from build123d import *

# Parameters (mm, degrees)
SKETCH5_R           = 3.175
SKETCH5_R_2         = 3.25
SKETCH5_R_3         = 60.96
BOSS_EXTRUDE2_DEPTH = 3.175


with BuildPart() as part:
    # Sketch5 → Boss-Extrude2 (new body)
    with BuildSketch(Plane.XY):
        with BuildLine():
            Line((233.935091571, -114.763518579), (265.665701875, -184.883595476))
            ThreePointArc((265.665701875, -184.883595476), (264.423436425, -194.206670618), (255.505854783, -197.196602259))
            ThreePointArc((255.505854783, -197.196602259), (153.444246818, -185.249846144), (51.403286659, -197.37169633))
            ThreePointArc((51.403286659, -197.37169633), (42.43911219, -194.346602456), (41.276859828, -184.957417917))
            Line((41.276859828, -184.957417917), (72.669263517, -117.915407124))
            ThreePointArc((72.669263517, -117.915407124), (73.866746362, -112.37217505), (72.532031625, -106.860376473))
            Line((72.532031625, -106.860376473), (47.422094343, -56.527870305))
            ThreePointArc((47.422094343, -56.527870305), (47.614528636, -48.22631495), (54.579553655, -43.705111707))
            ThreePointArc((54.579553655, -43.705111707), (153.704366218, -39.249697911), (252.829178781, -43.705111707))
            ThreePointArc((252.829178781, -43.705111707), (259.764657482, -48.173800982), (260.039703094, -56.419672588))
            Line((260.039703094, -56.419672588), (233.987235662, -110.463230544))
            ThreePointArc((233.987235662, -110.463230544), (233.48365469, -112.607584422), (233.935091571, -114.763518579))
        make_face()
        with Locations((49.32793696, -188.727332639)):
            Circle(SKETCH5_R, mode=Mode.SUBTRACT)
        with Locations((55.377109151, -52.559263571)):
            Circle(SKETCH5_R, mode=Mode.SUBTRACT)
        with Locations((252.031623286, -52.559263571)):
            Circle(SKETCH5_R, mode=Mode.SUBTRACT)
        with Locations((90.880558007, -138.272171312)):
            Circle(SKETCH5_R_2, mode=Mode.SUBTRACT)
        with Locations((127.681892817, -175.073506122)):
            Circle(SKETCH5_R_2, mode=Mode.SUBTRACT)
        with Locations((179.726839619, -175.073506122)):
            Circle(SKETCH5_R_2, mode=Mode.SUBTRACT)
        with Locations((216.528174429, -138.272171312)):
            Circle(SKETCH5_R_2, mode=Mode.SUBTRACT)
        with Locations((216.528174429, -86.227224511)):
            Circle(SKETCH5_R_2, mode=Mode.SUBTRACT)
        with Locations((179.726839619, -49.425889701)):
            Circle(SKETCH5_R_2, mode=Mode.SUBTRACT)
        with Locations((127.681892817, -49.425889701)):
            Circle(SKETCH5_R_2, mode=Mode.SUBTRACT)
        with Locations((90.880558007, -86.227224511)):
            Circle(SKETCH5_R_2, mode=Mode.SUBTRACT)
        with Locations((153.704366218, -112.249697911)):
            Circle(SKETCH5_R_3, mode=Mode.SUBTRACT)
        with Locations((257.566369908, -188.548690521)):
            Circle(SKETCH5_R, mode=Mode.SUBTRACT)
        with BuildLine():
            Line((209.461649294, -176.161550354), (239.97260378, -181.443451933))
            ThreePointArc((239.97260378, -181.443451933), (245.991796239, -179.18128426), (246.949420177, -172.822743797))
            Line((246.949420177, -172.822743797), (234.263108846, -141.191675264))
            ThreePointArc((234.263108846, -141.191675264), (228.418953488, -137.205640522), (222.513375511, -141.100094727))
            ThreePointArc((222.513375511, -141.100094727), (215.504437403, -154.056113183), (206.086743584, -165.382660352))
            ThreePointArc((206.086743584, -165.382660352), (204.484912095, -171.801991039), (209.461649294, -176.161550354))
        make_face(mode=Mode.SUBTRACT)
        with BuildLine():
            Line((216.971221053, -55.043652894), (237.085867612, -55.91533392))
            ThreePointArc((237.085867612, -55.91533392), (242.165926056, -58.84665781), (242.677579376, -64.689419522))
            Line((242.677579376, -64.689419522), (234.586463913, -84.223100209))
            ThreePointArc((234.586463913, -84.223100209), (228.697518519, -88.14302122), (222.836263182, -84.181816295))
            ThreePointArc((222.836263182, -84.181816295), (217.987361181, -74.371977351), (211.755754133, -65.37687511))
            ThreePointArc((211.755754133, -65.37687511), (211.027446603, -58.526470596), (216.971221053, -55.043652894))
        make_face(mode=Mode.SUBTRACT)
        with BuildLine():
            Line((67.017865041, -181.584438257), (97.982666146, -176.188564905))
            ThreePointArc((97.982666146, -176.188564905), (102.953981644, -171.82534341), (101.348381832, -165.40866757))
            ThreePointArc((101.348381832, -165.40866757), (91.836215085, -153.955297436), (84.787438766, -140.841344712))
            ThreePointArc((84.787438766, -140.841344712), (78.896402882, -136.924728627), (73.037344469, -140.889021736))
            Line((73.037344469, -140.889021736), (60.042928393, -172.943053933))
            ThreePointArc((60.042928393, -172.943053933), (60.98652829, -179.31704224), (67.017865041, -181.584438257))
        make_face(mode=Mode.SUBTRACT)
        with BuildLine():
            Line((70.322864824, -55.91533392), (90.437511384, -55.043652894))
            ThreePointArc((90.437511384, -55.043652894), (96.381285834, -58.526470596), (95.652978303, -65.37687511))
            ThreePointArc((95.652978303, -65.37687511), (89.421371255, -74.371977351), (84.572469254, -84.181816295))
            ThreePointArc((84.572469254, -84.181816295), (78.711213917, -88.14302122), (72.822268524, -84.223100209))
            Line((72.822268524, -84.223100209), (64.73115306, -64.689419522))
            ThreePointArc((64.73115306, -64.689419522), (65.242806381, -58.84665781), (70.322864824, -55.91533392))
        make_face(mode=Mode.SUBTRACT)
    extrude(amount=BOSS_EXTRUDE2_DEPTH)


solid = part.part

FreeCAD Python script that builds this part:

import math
import FreeCAD as App
import Part
import Sketcher
Q = App.Units.Quantity

doc = App.newDocument("Part")
body = doc.addObject("PartDesign::Body", "Body")

# Sketch on XY plane
sketch1 = doc.addObject("Sketcher::SketchObject", "Sketch")
body.addObject(sketch1)
sketch1.AttachmentSupport = (doc.XY_Plane, [""])
sketch1.MapMode = "FlatFace"
sketch1.addGeometry([
    Part.LineSegment(App.Vector(265.665702, -184.883595, 0), App.Vector(233.935092, -114.763519, 0)),  # 0
    Part.ArcOfCircle(Part.Circle(App.Vector(238.563281, -112.669179, 0), App.Vector(0, 0, 1), 5.08), math.radians(154.262946), math.radians(204.347617)),  # 1
    Part.LineSegment(App.Vector(233.987236, -110.463231, 0), App.Vector(260.039703, -56.419673, 0)),  # 2
    Part.ArcOfCircle(Part.Circle(App.Vector(252.031623, -52.559264, 0), App.Vector(0, 0, 1), 8.89), math.radians(-25.737054), math.radians(84.852859)),  # 3
    Part.ArcOfCircle(Part.Circle(App.Vector(153.704366, -1144.150346, 0), App.Vector(0, 0, 1), 1104.900648), math.radians(84.852859), math.radians(95.147141)),  # 4
    Part.ArcOfCircle(Part.Circle(App.Vector(55.377109, -52.559264, 0), App.Vector(0, 0, 1), 8.89), math.radians(95.147141), math.radians(206.513743)),  # 5
    Part.LineSegment(App.Vector(47.422094, -56.52787, 0), App.Vector(72.532032, -106.860376, 0)),  # 6
    Part.ArcOfCircle(Part.Circle(App.Vector(61.167725, -112.529815, 0), App.Vector(0, 0, 1), 12.7), math.radians(-25.091331), math.radians(26.513743)),  # 7
    Part.LineSegment(App.Vector(72.669264, -117.915407, 0), App.Vector(41.27686, -184.957418, 0)),  # 8
    Part.ArcOfCircle(Part.Circle(App.Vector(49.327937, -188.727333, 0), App.Vector(0, 0, 1), 8.89), math.radians(154.908669), math.radians(283.500135)),  # 9
    Part.ArcOfCircle(Part.Circle(App.Vector(153.82061, -623.96611, 0), App.Vector(0, 0, 1), 438.716425), math.radians(76.59817), math.radians(103.500135)),  # 10
    Part.ArcOfCircle(Part.Circle(App.Vector(257.56637, -188.548691, 0), App.Vector(0, 0, 1), 8.89), math.radians(-103.40183), math.radians(24.347617)),  # 11
    Part.Circle(App.Vector(257.56637, -188.548691, 0), App.Vector(0, 0, 1), 3.175),  # 12
    Part.ArcOfCircle(Part.Circle(App.Vector(210.544818, -169.904615, 0), App.Vector(0, 0, 1), 6.35), math.radians(134.592432), math.radians(260.178585)),  # 13
    Part.ArcOfCircle(Part.Circle(App.Vector(153.704366, -112.249698, 0), App.Vector(0, 0, 1), 74.6125), math.radians(-45.407568), math.radians(-22.74744)),  # 14
    Part.ArcOfCircle(Part.Circle(App.Vector(228.369461, -143.555448, 0), App.Vector(0, 0, 1), 6.35), math.radians(21.854301), math.radians(157.25256)),  # 15
    Part.LineSegment(App.Vector(234.263109, -141.191675, 0), App.Vector(246.94942, -172.822744, 0)),  # 16
    Part.ArcOfCircle(Part.Circle(App.Vector(241.055773, -175.186516, 0), App.Vector(0, 0, 1), 6.35), math.radians(-99.821415), math.radians(21.854301)),  # 17
    Part.LineSegment(App.Vector(239.972604, -181.443452, 0), App.Vector(209.461649, -176.16155, 0)),  # 18
    Part.Circle(App.Vector(179.72684, -175.073506, 0), App.Vector(0, 0, 1), 3.25),  # 19
    Part.Circle(App.Vector(216.528174, -138.272171, 0), App.Vector(0, 0, 1), 3.25),  # 20
    Part.Circle(App.Vector(127.681893, -175.073506, 0), App.Vector(0, 0, 1), 3.25),  # 21
    Part.Circle(App.Vector(49.327937, -188.727333, 0), App.Vector(0, 0, 1), 3.175),  # 22
    Part.ArcOfCircle(Part.Circle(App.Vector(65.927752, -175.328709, 0), App.Vector(0, 0, 1), 6.35), math.radians(157.932809), math.radians(279.885006)),  # 23
    Part.LineSegment(App.Vector(60.042928, -172.943054, 0), App.Vector(73.037344, -140.889022, 0)),  # 24
    Part.ArcOfCircle(Part.Circle(App.Vector(78.922168, -143.274676, 0), App.Vector(0, 0, 1), 6.35), math.radians(22.532153), math.radians(157.932809)),  # 25
    Part.ArcOfCircle(Part.Circle(App.Vector(153.704366, -112.249698, 0), App.Vector(0, 0, 1), 74.6125), math.radians(-157.467847), math.radians(-134.563979)),  # 26
    Part.ArcOfCircle(Part.Circle(App.Vector(96.892553, -169.932835, 0), App.Vector(0, 0, 1), 6.35), math.radians(-80.114994), math.radians(45.436021)),  # 27
    Part.LineSegment(App.Vector(97.982666, -176.188565, 0), App.Vector(67.017865, -181.584438, 0)),  # 28
    Part.Circle(App.Vector(90.880558, -138.272171, 0), App.Vector(0, 0, 1), 3.25),  # 29
    Part.Circle(App.Vector(216.528174, -86.227225, 0), App.Vector(0, 0, 1), 3.25),  # 30
    Part.Circle(App.Vector(153.704366, -112.249698, 0), App.Vector(0, 0, 1), 60.96),  # 31
    Part.LineSegment(App.Vector(216.971221, -55.043653, 0), App.Vector(237.085868, -55.915334, 0)),  # 32
    Part.ArcOfCircle(Part.Circle(App.Vector(236.810944, -62.25938, 0), App.Vector(0, 0, 1), 6.35), math.radians(-22.5), math.radians(87.518603)),  # 33
    Part.LineSegment(App.Vector(242.677579, -64.68942, 0), App.Vector(234.586464, -84.2231, 0)),  # 34
    Part.ArcOfCircle(Part.Circle(App.Vector(228.719829, -81.79306, 0), App.Vector(0, 0, 1), 6.35), math.radians(-157.902612), math.radians(-22.5)),  # 35
    Part.ArcOfCircle(Part.Circle(App.Vector(153.704366, -112.249698, 0), App.Vector(0, 0, 1), 74.6125), math.radians(22.097388), math.radians(38.91868)),  # 36
    Part.ArcOfCircle(Part.Circle(App.Vector(216.696298, -61.387699, 0), App.Vector(0, 0, 1), 6.35), math.radians(87.518603), math.radians(218.91868)),  # 37
    Part.Circle(App.Vector(252.031623, -52.559264, 0), App.Vector(0, 0, 1), 3.175),  # 38
    Part.Circle(App.Vector(179.72684, -49.42589, 0), App.Vector(0, 0, 1), 3.25),  # 39
    Part.Circle(App.Vector(90.880558, -86.227225, 0), App.Vector(0, 0, 1), 3.25),  # 40
    Part.Circle(App.Vector(127.681893, -49.42589, 0), App.Vector(0, 0, 1), 3.25),  # 41
    Part.LineSegment(App.Vector(70.322865, -55.915334, 0), App.Vector(90.437511, -55.043653, 0)),  # 42
    Part.ArcOfCircle(Part.Circle(App.Vector(90.712435, -61.387699, 0), App.Vector(0, 0, 1), 6.35), math.radians(-38.91868), math.radians(92.481397)),  # 43
    Part.ArcOfCircle(Part.Circle(App.Vector(153.704366, -112.249698, 0), App.Vector(0, 0, 1), 74.6125), math.radians(141.08132), math.radians(157.902612)),  # 44
    Part.ArcOfCircle(Part.Circle(App.Vector(78.688904, -81.79306, 0), App.Vector(0, 0, 1), 6.35), math.radians(-157.5), math.radians(-22.097388)),  # 45
    Part.LineSegment(App.Vector(72.822269, -84.2231, 0), App.Vector(64.731153, -64.68942, 0)),  # 46
    Part.ArcOfCircle(Part.Circle(App.Vector(70.597788, -62.25938, 0), App.Vector(0, 0, 1), 6.35), math.radians(92.481397), math.radians(202.5)),  # 47
    Part.Circle(App.Vector(55.377109, -52.559264, 0), App.Vector(0, 0, 1), 3.175),  # 48
], False)
sketch1.addConstraint([
    Sketcher.Constraint("Coincident", 0, 2, 1, 2),
    Sketcher.Constraint("Coincident", 1, 1, 2, 1),
    Sketcher.Constraint("Coincident", 2, 2, 3, 1),
    Sketcher.Constraint("Coincident", 3, 2, 4, 1),
    Sketcher.Constraint("Coincident", 4, 2, 5, 1),
    Sketcher.Constraint("Coincident", 5, 2, 6, 1),
    Sketcher.Constraint("Coincident", 6, 2, 7, 2),
    Sketcher.Constraint("Coincident", 7, 1, 8, 1),
    Sketcher.Constraint("Coincident", 8, 2, 9, 1),
    Sketcher.Constraint("Coincident", 9, 2, 10, 2),
    Sketcher.Constraint("Coincident", 10, 1, 11, 1),
    Sketcher.Constraint("Coincident", 11, 2, 0, 1),
    Sketcher.Constraint("Coincident", 13, 1, 14, 1),
    Sketcher.Constraint("Coincident", 14, 2, 15, 2),
    Sketcher.Constraint("Coincident", 15, 1, 16, 1),
    Sketcher.Constraint("Coincident", 16, 2, 17, 2),
    Sketcher.Constraint("Coincident", 17, 1, 18, 1),
    Sketcher.Constraint("Coincident", 18, 2, 13, 2),
    Sketcher.Constraint("Coincident", 23, 1, 24, 1),
    Sketcher.Constraint("Coincident", 24, 2, 25, 2),
    Sketcher.Constraint("Coincident", 25, 1, 26, 1),
    Sketcher.Constraint("Coincident", 26, 2, 27, 2),
    Sketcher.Constraint("Coincident", 27, 1, 28, 1),
    Sketcher.Constraint("Coincident", 28, 2, 23, 2),
    Sketcher.Constraint("Coincident", 32, 2, 33, 2),
    Sketcher.Constraint("Coincident", 33, 1, 34, 1),
    Sketcher.Constraint("Coincident", 34, 2, 35, 2),
    Sketcher.Constraint("Coincident", 35, 1, 36, 1),
    Sketcher.Constraint("Coincident", 36, 2, 37, 2),
    Sketcher.Constraint("Coincident", 37, 1, 32, 1),
    Sketcher.Constraint("Coincident", 42, 2, 43, 2),
    Sketcher.Constraint("Coincident", 43, 1, 44, 1),
    Sketcher.Constraint("Coincident", 44, 2, 45, 2),
    Sketcher.Constraint("Coincident", 45, 1, 46, 1),
    Sketcher.Constraint("Coincident", 46, 2, 47, 2),
    Sketcher.Constraint("Coincident", 47, 1, 42, 1),
    Sketcher.Constraint("Coincident", 12, 3, 11, 3),
    Sketcher.Constraint("Coincident", 22, 3, 9, 3),
    Sketcher.Constraint("Coincident", 26, 3, 14, 3),
    Sketcher.Constraint("Coincident", 31, 3, 14, 3),
    Sketcher.Constraint("Coincident", 36, 3, 14, 3),
    Sketcher.Constraint("Coincident", 38, 3, 3, 3),
    Sketcher.Constraint("Coincident", 44, 3, 14, 3),
    Sketcher.Constraint("Coincident", 48, 3, 5, 3),
    Sketcher.Constraint("Diameter", 31, Q("4.8 in")),
    Sketcher.Constraint("Radius", 1, Q("0.2 in")),
    Sketcher.Constraint("Radius", 7, Q("0.5 in")),
    Sketcher.Constraint("Diameter", 12, Q("0.25 in")),
    Sketcher.Constraint("Diameter", 22, Q("0.25 in")),
    Sketcher.Constraint("Diameter", 38, Q("0.25 in")),
    Sketcher.Constraint("Diameter", 48, Q("0.25 in")),
    Sketcher.Constraint("Radius", 3, Q("0.35 in")),
    Sketcher.Constraint("Radius", 5, Q("0.35 in")),
    Sketcher.Constraint("Radius", 9, Q("0.35 in")),
    Sketcher.Constraint("Radius", 11, Q("0.35 in")),
    Sketcher.Constraint("Radius", 13, Q("0.25 in")),
    Sketcher.Constraint("Radius", 15, Q("0.25 in")),
    Sketcher.Constraint("Radius", 17, Q("0.25 in")),
    Sketcher.Constraint("Radius", 23, Q("0.25 in")),
    Sketcher.Constraint("Radius", 25, Q("0.25 in")),
    Sketcher.Constraint("Radius", 27, Q("0.25 in")),
    Sketcher.Constraint("Radius", 33, Q("0.25 in")),
    Sketcher.Constraint("Radius", 35, Q("0.25 in")),
    Sketcher.Constraint("Radius", 37, Q("0.25 in")),
    Sketcher.Constraint("Radius", 43, Q("0.25 in")),
    Sketcher.Constraint("Radius", 45, Q("0.25 in")),
    Sketcher.Constraint("Radius", 47, Q("0.25 in")),
    Sketcher.Constraint("Radius", 14, Q("2.9375 in")),
    Sketcher.Constraint("Radius", 26, Q("2.9375 in")),
    Sketcher.Constraint("Radius", 36, Q("2.9375 in")),
    Sketcher.Constraint("Radius", 44, Q("2.9375 in")),
    Sketcher.Constraint("Diameter", 19, Q("6.5 mm")),
    Sketcher.Constraint("Diameter", 20, Q("6.5 mm")),
    Sketcher.Constraint("Diameter", 21, Q("6.5 mm")),
    Sketcher.Constraint("Diameter", 29, Q("6.5 mm")),
    Sketcher.Constraint("Diameter", 30, Q("6.5 mm")),
    Sketcher.Constraint("Diameter", 39, Q("6.5 mm")),
    Sketcher.Constraint("Diameter", 40, Q("6.5 mm")),
    Sketcher.Constraint("Diameter", 41, Q("6.5 mm")),
    Sketcher.Constraint("Radius", 4, Q("1104.900648 mm")),
    Sketcher.Constraint("Radius", 10, Q("438.716425 mm")),
    Sketcher.Constraint("Distance", 24, Q("34.587799 mm")),
    Sketcher.Constraint("DistanceY", 37, 3, -1, 1, Q("61.387699 mm")),
    Sketcher.Constraint("DistanceY", 43, 3, -1, 1, Q("61.387699 mm")),
    Sketcher.Constraint("DistanceX", -1, 1, 11, 2, Q("265.665702 mm")),
    Sketcher.Constraint("DistanceY", 34, 2, -1, 1, Q("84.2231 mm")),
    Sketcher.Constraint("DistanceY", 45, 1, -1, 1, Q("84.2231 mm")),
    Sketcher.Constraint("Distance", 2, Q("59.99531 mm")),
    Sketcher.Constraint("Distance", 6, Q("56.24829 mm")),
    Sketcher.Constraint("DistanceX", -1, 1, 1, 3, Q("238.563281 mm")),
    Sketcher.Constraint("DistanceY", 1, 3, -1, 1, Q("112.669179 mm")),
    Sketcher.Constraint("DistanceX", -1, 1, 5, 3, Q("55.377109 mm")),
    Sketcher.Constraint("DistanceX", -1, 1, 10, 3, Q("153.82061 mm")),
    Sketcher.Constraint("DistanceY", 10, 3, -1, 1, Q("623.96611 mm")),
    Sketcher.Constraint("DistanceX", -1, 1, 11, 3, Q("257.56637 mm")),
    Sketcher.Constraint("DistanceX", -1, 1, 13, 3, Q("210.544818 mm")),
    Sketcher.Constraint("DistanceX", -1, 1, 15, 3, Q("228.369461 mm")),
    Sketcher.Constraint("DistanceX", -1, 1, 19, 3, Q("179.72684 mm")),
    Sketcher.Constraint("DistanceY", 20, 3, -1, 1, Q("138.272171 mm")),
    Sketcher.Constraint("DistanceY", 23, 3, -1, 1, Q("175.328709 mm")),
    Sketcher.Constraint("DistanceX", -1, 1, 25, 3, Q("78.922168 mm")),
    Sketcher.Constraint("DistanceX", -1, 1, 29, 3, Q("90.880558 mm")),
    Sketcher.Constraint("DistanceY", 29, 3, -1, 1, Q("138.272171 mm")),
    Sketcher.Constraint("DistanceY", 33, 3, -1, 1, Q("62.25938 mm")),
    Sketcher.Constraint("DistanceX", -1, 1, 35, 3, Q("228.719829 mm")),
    Sketcher.Constraint("DistanceY", 35, 3, -1, 1, Q("81.79306 mm")),
    Sketcher.Constraint("DistanceX", -1, 1, 39, 3, Q("179.72684 mm")),
    Sketcher.Constraint("DistanceY", 39, 3, -1, 1, Q("49.42589 mm")),
    Sketcher.Constraint("DistanceX", -1, 1, 40, 3, Q("90.880558 mm")),
    Sketcher.Constraint("DistanceY", 41, 3, -1, 1, Q("49.42589 mm")),
    Sketcher.Constraint("DistanceY", 45, 3, -1, 1, Q("81.79306 mm")),
    Sketcher.Constraint("DistanceX", -1, 1, 47, 3, Q("70.597788 mm")),
    Sketcher.Constraint("DistanceY", 47, 3, -1, 1, Q("62.25938 mm")),
    Sketcher.Constraint("DistanceX", -1, 1, 0, 2, Q("233.935092 mm")),
    Sketcher.Constraint("DistanceY", 1, 1, -1, 1, Q("110.463231 mm")),
    Sketcher.Constraint("DistanceX", -1, 1, 3, 2, Q("252.829179 mm")),
    Sketcher.Constraint("DistanceY", 3, 2, -1, 1, Q("43.705112 mm")),
    Sketcher.Constraint("DistanceY", 4, 2, -1, 1, Q("43.705112 mm")),
    Sketcher.Constraint("DistanceY", 5, 2, -1, 1, Q("56.52787 mm")),
    Sketcher.Constraint("DistanceX", -1, 1, 6, 2, Q("72.532032 mm")),
    Sketcher.Constraint("DistanceX", -1, 1, 8, 2, Q("41.27686 mm")),
    Sketcher.Constraint("DistanceY", 13, 1, -1, 1, Q("165.38266 mm")),
    Sketcher.Constraint("DistanceX", -1, 1, 15, 1, Q("234.263109 mm")),
    Sketcher.Constraint("DistanceX", -1, 1, 16, 2, Q("246.94942 mm")),
    Sketcher.Constraint("DistanceY", 17, 1, -1, 1, Q("181.443452 mm")),
    Sketcher.Constraint("DistanceX", -1, 1, 18, 2, Q("209.461649 mm")),
    Sketcher.Constraint("DistanceY", 18, 2, -1, 1, Q("176.16155 mm")),
    Sketcher.Constraint("DistanceX", -1, 1, 23, 1, Q("60.042928 mm")),
    Sketcher.Constraint("DistanceY", 24, 2, -1, 1, Q("140.889022 mm")),
    Sketcher.Constraint("DistanceX", -1, 1, 25, 1, Q("84.787439 mm")),
    Sketcher.Constraint("DistanceX", -1, 1, 26, 2, Q("101.348382 mm")),
    Sketcher.Constraint("DistanceY", 28, 2, -1, 1, Q("181.584438 mm")),
    Sketcher.Constraint("DistanceX", -1, 1, 33, 1, Q("242.677579 mm")),
    Sketcher.Constraint("DistanceY", 33, 1, -1, 1, Q("64.68942 mm")),
    Sketcher.Constraint("DistanceX", -1, 1, 37, 1, Q("216.971221 mm")),
    Sketcher.Constraint("DistanceX", -1, 1, 42, 2, Q("90.437511 mm")),
    Sketcher.Constraint("DistanceX", -1, 1, 43, 1, Q("95.652978 mm")),
    Sketcher.Constraint("DistanceX", -1, 1, 44, 2, Q("84.572469 mm")),
    Sketcher.Constraint("DistanceY", 46, 2, -1, 1, Q("64.68942 mm")),
    Sketcher.Constraint("Distance", 8, Q("74.027794 mm")),
    Sketcher.Constraint("Distance", 16, Q("34.080302 mm")),
    Sketcher.Constraint("Distance", 18, Q("30.964768 mm")),
    Sketcher.Constraint("Distance", 28, Q("31.431423 mm")),
    Sketcher.Constraint("Distance", 32, Q("20.133525 mm")),
    Sketcher.Constraint("Distance", 42, Q("20.133525 mm")),
    Sketcher.Constraint("DistanceX", -1, 1, 3, 3, Q("252.031623 mm")),
    Sketcher.Constraint("DistanceX", -1, 1, 4, 3, Q("153.704366 mm")),
    Sketcher.Constraint("DistanceX", -1, 1, 7, 3, Q("61.167725 mm")),
    Sketcher.Constraint("DistanceX", -1, 1, 9, 3, Q("49.327937 mm")),
    Sketcher.Constraint("DistanceY", 19, 3, -1, 1, Q("175.073506 mm")),
    Sketcher.Constraint("DistanceX", -1, 1, 20, 3, Q("216.528174 mm")),
    Sketcher.Constraint("DistanceX", -1, 1, 21, 3, Q("127.681893 mm")),
    Sketcher.Constraint("DistanceY", 21, 3, -1, 1, Q("175.073506 mm")),
    Sketcher.Constraint("DistanceX", -1, 1, 27, 3, Q("96.892553 mm")),
    Sketcher.Constraint("DistanceX", -1, 1, 30, 3, Q("216.528174 mm")),
    Sketcher.Constraint("DistanceY", 30, 3, -1, 1, Q("86.227225 mm")),
    Sketcher.Constraint("DistanceY", 40, 3, -1, 1, Q("86.227225 mm")),
    Sketcher.Constraint("DistanceX", -1, 1, 41, 3, Q("127.681893 mm")),
    Sketcher.Constraint("DistanceX", -1, 1, 9, 2, Q("51.403287 mm")),
    Sketcher.Constraint("DistanceX", -1, 1, 10, 1, Q("255.505855 mm")),
    Sketcher.Constraint("DistanceX", -1, 1, 14, 2, Q("222.513376 mm")),
    Sketcher.Constraint("DistanceX", -1, 1, 35, 1, Q("222.836263 mm")),
    Sketcher.Constraint("DistanceX", -1, 1, 36, 2, Q("211.755754 mm")),
])
pad1 = doc.addObject("PartDesign::Pad", "Pad")
body.addObject(pad1)
pad1.Profile = sketch1
pad1.Length = Q("0.125 in")

doc.recompute()
